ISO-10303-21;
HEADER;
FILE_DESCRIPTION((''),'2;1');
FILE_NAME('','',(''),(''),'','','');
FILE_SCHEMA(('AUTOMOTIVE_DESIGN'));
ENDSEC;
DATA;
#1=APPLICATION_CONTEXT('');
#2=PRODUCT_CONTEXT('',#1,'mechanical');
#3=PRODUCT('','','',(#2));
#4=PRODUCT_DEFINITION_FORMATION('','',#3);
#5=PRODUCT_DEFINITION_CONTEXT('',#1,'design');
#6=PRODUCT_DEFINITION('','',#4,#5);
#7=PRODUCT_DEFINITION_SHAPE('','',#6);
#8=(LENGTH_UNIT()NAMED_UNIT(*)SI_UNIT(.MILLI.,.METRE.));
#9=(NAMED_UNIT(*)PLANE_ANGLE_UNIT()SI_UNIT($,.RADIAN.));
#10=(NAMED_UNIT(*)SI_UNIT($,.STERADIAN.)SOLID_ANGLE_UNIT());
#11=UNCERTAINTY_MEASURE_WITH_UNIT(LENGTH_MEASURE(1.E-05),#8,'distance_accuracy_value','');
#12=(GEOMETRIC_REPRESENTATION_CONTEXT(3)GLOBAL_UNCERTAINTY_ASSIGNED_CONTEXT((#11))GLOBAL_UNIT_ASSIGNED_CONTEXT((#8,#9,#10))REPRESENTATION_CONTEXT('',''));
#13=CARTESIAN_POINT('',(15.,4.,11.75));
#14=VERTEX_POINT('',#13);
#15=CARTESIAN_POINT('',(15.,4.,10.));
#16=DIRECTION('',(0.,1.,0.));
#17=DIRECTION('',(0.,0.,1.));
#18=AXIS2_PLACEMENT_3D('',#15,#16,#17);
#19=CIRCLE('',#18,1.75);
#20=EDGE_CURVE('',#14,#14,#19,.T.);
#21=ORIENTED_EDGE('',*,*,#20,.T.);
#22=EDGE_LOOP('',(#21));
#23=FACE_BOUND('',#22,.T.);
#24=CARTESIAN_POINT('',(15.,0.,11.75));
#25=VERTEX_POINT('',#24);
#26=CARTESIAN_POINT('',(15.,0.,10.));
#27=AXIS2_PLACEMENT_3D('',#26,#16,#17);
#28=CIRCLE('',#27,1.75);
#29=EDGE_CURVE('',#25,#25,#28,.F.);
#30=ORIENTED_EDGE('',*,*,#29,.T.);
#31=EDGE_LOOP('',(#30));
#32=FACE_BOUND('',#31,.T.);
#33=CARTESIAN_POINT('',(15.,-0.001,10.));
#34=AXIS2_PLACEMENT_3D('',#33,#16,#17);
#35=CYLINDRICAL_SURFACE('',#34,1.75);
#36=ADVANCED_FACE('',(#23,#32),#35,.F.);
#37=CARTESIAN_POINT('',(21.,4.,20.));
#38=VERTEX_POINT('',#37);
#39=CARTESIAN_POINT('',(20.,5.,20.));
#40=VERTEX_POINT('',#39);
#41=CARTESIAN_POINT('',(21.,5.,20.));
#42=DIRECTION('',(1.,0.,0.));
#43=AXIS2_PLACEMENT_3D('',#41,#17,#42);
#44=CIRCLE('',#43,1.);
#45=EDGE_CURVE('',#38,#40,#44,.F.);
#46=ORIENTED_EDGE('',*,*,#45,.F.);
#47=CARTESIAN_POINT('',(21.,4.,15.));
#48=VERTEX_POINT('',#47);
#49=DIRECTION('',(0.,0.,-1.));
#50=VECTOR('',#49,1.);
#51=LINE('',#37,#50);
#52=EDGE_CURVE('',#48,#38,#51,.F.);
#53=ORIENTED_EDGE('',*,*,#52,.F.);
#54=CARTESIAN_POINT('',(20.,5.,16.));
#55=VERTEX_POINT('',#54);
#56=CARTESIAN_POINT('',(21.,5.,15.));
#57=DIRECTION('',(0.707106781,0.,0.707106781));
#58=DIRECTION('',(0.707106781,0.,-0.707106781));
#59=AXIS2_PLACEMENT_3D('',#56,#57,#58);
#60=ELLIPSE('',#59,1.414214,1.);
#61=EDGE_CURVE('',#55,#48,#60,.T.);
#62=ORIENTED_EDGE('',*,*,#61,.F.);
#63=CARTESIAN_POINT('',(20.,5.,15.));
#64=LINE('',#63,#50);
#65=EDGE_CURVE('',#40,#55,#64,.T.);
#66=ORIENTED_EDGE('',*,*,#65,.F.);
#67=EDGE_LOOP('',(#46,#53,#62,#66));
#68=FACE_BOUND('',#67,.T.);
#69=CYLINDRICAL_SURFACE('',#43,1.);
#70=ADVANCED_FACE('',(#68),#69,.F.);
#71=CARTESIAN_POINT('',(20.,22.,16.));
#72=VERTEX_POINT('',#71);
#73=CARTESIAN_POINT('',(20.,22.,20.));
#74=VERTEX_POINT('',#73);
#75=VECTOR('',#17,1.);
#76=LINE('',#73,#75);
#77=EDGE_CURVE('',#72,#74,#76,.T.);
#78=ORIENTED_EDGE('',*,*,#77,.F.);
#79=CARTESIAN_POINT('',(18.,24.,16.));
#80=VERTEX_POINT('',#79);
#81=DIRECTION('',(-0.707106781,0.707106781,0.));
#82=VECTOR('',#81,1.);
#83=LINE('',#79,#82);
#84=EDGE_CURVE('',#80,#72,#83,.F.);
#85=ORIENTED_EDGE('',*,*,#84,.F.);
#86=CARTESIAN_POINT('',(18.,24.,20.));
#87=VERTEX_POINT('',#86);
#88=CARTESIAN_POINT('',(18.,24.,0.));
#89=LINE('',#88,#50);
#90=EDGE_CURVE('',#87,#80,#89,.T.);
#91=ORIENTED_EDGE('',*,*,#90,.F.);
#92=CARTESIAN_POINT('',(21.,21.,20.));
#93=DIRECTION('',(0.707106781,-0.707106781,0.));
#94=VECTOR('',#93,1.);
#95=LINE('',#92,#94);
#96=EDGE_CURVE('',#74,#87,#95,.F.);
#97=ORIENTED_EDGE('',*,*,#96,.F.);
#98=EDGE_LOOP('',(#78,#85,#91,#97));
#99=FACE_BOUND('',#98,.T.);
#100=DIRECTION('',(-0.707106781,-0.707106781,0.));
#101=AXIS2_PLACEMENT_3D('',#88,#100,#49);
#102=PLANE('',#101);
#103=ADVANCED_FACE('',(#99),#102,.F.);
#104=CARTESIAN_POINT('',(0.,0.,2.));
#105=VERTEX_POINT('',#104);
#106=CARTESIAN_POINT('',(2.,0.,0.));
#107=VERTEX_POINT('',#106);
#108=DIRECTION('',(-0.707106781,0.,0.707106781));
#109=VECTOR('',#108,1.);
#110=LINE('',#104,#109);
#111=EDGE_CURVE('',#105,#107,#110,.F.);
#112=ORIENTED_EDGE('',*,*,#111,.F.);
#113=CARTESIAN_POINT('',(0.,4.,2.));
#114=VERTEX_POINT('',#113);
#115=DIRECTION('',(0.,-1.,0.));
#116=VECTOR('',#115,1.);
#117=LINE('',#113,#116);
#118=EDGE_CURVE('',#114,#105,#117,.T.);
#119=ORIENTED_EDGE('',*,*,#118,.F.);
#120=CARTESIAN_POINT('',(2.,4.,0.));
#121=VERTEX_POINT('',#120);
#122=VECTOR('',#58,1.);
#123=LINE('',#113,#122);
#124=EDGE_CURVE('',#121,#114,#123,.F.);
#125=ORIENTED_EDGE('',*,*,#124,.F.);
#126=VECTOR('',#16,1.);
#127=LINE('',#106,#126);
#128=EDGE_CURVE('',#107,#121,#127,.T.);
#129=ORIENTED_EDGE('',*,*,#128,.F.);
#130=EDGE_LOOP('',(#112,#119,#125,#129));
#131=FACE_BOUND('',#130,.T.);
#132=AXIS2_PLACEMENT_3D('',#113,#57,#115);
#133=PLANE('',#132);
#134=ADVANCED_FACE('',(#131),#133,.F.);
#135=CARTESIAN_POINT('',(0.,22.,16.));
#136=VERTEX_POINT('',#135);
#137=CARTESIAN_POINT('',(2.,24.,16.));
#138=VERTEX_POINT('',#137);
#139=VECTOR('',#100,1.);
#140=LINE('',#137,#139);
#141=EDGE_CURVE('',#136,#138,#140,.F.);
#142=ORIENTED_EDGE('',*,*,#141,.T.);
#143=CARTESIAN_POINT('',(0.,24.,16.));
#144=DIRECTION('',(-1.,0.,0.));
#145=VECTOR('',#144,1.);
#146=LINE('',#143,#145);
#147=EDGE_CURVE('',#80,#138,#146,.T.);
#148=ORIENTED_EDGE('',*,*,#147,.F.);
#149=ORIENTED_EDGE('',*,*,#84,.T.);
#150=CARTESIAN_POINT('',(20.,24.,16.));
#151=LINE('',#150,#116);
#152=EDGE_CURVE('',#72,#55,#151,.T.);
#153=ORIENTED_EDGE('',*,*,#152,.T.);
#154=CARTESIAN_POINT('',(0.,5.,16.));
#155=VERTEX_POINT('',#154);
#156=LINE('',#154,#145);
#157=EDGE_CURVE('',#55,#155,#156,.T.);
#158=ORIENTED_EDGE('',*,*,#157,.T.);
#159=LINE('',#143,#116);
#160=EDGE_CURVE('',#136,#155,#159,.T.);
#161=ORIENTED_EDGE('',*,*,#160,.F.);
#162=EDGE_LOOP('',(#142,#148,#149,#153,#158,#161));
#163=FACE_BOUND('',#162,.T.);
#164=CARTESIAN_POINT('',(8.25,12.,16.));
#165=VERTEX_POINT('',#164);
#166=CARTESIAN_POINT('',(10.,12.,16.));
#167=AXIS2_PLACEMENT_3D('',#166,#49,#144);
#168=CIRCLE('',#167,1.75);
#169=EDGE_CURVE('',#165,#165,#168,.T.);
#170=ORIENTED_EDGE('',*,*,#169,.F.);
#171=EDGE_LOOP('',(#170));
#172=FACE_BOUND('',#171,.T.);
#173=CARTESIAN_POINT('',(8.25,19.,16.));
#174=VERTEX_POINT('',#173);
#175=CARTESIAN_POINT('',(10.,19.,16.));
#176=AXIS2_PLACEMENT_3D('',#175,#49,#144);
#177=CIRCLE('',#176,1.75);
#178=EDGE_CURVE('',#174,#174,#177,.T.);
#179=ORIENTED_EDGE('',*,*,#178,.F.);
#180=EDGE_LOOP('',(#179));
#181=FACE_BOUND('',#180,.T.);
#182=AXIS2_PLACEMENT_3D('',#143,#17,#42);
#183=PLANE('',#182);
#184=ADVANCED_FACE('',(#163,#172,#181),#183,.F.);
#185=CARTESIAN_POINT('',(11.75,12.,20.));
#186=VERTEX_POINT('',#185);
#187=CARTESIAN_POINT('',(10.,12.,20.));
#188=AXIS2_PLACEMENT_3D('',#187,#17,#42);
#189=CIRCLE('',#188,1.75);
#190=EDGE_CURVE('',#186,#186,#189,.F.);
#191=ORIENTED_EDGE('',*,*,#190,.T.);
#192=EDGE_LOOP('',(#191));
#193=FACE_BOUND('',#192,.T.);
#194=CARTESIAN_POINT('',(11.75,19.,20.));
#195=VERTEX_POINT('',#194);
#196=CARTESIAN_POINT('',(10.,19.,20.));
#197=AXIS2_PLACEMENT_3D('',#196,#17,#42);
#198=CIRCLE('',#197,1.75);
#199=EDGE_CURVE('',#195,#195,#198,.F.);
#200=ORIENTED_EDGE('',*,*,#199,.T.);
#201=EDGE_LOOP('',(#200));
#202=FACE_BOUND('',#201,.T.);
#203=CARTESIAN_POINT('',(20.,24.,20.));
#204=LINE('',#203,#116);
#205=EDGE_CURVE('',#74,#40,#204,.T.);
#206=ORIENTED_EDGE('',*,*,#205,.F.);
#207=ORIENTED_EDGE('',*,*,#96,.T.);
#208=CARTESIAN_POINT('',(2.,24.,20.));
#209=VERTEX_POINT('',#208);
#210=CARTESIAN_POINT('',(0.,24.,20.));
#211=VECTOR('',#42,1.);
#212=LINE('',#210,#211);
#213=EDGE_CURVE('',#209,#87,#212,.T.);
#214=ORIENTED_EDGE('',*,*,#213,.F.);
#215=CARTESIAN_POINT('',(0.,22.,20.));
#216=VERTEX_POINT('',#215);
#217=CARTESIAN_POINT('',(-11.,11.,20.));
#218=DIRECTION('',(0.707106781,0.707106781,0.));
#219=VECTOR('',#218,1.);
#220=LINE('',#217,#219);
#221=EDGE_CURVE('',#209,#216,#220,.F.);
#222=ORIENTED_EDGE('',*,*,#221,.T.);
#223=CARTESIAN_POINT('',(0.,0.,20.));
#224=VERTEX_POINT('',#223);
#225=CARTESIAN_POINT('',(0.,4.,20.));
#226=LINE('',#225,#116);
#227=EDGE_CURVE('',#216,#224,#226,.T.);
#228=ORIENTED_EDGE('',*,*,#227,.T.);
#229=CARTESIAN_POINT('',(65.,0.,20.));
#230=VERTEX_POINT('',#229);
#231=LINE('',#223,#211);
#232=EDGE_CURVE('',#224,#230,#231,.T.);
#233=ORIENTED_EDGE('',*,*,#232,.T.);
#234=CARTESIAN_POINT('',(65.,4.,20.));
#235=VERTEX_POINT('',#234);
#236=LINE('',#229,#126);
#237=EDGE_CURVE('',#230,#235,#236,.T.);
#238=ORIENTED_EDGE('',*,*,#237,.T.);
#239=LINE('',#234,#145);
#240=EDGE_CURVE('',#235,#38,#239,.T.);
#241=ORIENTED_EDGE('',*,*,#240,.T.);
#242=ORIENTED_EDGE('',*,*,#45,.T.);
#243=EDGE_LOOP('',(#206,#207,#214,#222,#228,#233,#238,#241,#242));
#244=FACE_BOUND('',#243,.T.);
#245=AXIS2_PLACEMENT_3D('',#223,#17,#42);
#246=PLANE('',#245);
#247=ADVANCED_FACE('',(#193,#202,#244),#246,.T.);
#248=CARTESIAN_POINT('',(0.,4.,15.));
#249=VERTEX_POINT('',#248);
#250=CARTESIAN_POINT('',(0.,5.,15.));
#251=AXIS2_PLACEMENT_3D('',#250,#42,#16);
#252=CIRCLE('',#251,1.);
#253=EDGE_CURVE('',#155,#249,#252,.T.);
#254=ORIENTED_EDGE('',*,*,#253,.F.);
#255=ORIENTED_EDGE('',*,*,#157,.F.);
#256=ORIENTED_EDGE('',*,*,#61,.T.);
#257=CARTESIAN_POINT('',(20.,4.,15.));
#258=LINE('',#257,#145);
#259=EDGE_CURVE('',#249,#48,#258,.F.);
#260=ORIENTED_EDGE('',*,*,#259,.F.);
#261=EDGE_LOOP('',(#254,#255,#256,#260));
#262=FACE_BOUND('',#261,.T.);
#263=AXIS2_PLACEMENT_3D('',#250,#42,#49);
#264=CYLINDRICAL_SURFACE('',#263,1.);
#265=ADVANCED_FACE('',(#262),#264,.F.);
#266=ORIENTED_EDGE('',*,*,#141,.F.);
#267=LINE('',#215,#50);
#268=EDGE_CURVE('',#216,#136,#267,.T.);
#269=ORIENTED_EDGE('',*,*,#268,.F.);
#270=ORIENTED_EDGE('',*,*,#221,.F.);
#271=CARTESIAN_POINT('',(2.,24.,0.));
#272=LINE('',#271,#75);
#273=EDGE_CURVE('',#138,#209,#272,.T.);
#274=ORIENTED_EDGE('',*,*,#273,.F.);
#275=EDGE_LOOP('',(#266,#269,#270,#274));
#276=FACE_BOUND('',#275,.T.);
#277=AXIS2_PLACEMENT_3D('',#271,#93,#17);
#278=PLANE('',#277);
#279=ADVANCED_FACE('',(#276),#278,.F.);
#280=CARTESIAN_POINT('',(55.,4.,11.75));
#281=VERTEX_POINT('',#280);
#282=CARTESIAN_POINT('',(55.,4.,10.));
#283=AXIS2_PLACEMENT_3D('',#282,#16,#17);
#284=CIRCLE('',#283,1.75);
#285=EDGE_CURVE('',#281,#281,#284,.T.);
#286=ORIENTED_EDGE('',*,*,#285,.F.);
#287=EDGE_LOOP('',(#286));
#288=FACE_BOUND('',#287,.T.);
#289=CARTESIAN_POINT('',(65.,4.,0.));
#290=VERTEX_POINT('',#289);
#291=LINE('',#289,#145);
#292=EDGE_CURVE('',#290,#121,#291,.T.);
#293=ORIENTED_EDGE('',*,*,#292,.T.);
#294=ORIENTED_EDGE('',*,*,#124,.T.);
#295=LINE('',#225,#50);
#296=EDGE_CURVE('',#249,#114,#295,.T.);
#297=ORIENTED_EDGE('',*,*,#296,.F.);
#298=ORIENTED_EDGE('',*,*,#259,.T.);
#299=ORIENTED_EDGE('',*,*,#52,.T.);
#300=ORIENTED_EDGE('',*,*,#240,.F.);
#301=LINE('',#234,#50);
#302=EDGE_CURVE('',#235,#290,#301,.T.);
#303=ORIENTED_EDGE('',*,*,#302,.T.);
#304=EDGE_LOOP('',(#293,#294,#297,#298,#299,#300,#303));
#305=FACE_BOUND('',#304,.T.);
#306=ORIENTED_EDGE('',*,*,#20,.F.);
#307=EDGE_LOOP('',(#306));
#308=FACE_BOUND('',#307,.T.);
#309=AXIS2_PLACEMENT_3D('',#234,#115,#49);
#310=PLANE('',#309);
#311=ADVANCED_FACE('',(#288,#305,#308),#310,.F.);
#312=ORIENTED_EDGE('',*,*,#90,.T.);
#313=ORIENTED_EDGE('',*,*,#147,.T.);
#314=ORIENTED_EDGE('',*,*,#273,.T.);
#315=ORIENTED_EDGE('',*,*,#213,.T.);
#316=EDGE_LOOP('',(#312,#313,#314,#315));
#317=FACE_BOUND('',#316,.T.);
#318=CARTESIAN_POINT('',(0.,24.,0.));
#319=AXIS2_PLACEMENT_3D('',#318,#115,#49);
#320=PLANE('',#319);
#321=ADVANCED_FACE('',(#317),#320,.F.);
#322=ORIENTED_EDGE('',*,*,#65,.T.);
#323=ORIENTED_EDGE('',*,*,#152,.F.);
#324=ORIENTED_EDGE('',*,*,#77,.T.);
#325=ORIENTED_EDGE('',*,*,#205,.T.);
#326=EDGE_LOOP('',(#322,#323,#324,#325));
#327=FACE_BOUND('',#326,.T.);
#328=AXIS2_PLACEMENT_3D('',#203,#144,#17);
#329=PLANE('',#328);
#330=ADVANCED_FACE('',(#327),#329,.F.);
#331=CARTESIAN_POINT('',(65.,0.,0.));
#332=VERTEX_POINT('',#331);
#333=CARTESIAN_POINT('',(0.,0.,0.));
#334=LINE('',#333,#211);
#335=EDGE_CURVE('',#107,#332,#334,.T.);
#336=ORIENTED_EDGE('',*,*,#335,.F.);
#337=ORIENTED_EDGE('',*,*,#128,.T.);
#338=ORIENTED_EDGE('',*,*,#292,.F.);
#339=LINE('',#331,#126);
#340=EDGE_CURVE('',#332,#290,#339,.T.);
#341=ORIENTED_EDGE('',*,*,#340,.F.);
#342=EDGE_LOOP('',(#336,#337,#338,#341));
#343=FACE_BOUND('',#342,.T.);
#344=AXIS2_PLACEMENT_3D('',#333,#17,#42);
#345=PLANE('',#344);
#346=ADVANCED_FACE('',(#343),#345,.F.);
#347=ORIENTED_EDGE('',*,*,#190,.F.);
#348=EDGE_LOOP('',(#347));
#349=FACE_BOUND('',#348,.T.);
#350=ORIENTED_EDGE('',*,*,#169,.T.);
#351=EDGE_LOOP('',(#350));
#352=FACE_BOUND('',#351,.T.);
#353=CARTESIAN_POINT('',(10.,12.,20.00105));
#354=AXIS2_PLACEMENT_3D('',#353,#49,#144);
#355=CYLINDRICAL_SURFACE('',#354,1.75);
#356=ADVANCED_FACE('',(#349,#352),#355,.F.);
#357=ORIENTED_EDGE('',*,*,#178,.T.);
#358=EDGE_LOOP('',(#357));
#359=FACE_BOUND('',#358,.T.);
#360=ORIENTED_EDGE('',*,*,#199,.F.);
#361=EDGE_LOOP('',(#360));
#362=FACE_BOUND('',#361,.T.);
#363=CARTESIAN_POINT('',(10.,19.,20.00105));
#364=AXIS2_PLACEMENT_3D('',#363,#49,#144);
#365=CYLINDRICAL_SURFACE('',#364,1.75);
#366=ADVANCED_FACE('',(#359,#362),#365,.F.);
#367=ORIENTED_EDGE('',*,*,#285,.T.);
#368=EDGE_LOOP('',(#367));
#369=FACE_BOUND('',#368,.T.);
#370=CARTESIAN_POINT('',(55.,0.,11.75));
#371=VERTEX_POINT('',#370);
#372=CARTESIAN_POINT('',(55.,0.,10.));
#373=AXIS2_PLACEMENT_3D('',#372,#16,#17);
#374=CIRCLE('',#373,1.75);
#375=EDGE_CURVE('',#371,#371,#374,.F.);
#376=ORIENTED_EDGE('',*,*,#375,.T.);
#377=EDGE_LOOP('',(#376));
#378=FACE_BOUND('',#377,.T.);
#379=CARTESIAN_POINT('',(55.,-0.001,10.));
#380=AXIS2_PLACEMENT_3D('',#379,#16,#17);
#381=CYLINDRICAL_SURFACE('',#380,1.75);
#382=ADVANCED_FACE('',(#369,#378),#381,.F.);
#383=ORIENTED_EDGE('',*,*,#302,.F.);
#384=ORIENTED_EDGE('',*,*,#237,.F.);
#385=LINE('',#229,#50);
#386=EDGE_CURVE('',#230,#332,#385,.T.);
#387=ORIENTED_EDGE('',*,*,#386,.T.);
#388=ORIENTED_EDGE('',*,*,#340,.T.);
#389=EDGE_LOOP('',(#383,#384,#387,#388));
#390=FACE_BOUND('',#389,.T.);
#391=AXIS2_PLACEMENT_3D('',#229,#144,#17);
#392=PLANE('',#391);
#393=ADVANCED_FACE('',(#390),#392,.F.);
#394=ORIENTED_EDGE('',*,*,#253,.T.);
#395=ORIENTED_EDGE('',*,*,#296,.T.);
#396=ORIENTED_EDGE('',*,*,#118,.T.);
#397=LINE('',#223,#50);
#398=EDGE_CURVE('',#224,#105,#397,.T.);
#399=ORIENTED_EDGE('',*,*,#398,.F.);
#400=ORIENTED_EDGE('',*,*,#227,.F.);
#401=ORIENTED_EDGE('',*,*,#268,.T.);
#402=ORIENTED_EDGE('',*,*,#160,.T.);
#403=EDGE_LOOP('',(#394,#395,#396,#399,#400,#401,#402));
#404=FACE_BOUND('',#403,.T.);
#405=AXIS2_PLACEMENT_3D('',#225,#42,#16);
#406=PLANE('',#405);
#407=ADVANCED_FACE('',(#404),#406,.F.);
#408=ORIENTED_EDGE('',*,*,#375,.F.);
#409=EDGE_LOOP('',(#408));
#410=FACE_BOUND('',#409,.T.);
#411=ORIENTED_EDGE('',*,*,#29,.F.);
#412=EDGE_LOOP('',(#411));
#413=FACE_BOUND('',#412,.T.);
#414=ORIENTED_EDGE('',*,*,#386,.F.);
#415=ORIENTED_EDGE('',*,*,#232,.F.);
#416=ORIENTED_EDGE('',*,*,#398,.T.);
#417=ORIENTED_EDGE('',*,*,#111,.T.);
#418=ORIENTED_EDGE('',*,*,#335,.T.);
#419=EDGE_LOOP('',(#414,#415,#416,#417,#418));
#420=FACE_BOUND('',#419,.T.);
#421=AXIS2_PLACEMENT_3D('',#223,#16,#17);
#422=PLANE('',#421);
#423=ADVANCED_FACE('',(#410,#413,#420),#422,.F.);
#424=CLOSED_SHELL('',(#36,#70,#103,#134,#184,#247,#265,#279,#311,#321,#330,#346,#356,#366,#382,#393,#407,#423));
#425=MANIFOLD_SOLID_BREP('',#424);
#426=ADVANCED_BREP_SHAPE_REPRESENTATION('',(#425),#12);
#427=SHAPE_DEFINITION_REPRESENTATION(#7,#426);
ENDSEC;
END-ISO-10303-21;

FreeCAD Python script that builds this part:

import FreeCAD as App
import Part
import Sketcher
Q = App.Units.Quantity


def edges_at(feature, points):
    """Names of the edges that pass closest to the given points."""
    edges = feature.Shape.Edges
    near = lambda p: min(range(len(edges)), key=lambda i: edges[i].distToShape(Part.Vertex(*p))[0])
    return sorted({f"Edge{near(p) + 1}" for p in points})


def add_polygon(sketch, points):
    """Adds a closed chain of lines whose ends are joined by coincident constraints."""
    first, n = sketch.GeometryCount, len(points)
    for a, b in zip(points, points[1:] + points[:1]):
        sketch.addGeometry(Part.LineSegment(App.Vector(*a, 0), App.Vector(*b, 0)), False)
    for i in range(n):
        sketch.addConstraint(Sketcher.Constraint("Coincident", first + i, 2, first + (i + 1) % n, 1))

doc = App.newDocument("Part")
body = doc.addObject("PartDesign::Body", "Body")

# Sketch on XY plane
sketch1 = doc.addObject("Sketcher::SketchObject", "Sketch")
body.addObject(sketch1)
sketch1.AttachmentSupport = (doc.XY_Plane, [""])
sketch1.MapMode = "FlatFace"
add_polygon(sketch1, [(0, 4), (0, 0), (65, 0), (65, 4)])  # lines 0-3
sketch1.addConstraint([
    Sketcher.Constraint("Vertical", 0),
    Sketcher.Constraint("Horizontal", 1),
    Sketcher.Constraint("Vertical", 2),
    Sketcher.Constraint("Horizontal", 3),
    Sketcher.Constraint("Coincident", 0, 2, -1, 1),
    Sketcher.Constraint("DistanceX", 1, 1, 1, 2, Q("65 mm")),
    Sketcher.Constraint("DistanceY", 0, 2, 0, 1, Q("4 mm")),
])
pad1 = doc.addObject("PartDesign::Pad", "Pad")
body.addObject(pad1)
pad1.Profile = sketch1
pad1.Length = 20

# Sketch on XZ plane
sketch2 = doc.addObject("Sketcher::SketchObject", "Sketch001")
body.addObject(sketch2)
sketch2.AttachmentSupport = (doc.XZ_Plane, [""])
sketch2.MapMode = "FlatFace"
sketch2.AttachmentOffset = App.Placement(App.Vector(0, 0, -4), App.Rotation())
add_polygon(sketch2, [(0, 16), (0, 20), (20, 20), (20, 16)])  # lines 0-3
sketch2.addConstraint([
    Sketcher.Constraint("Vertical", 0),
    Sketcher.Constraint("Horizontal", 1),
    Sketcher.Constraint("Vertical", 2),
    Sketcher.Constraint("Horizontal", 3),
    Sketcher.Constraint("PointOnObject", 0, 2, -2),
    Sketcher.Constraint("DistanceX", 1, 1, 1, 2, Q("20 mm")),
    Sketcher.Constraint("DistanceY", 0, 1, 0, 2, Q("4 mm")),
    Sketcher.Constraint("DistanceY", -1, 1, 0, 2, Q("20 mm")),
])
pad2 = doc.addObject("PartDesign::Pad", "Pad001")
body.addObject(pad2)
pad2.Profile = sketch2
pad2.Length = 20
pad2.Reversed = True

# Sketch on XZ plane
sketch3 = doc.addObject("Sketcher::SketchObject", "Sketch002")
body.addObject(sketch3)
sketch3.AttachmentSupport = (doc.XZ_Plane, [""])
sketch3.MapMode = "FlatFace"
sketch3.AttachmentOffset = App.Placement(App.Vector(0, 0, -4), App.Rotation())
sketch3.addGeometry(Part.Circle(App.Vector(15, 10, 0), App.Vector(0, 0, 1), 1.75), False)
sketch3.addConstraint([
    Sketcher.Constraint("Diameter", 0, Q("3.5 mm")),
    Sketcher.Constraint("DistanceX", -1, 1, 0, 3, Q("15 mm")),
    Sketcher.Constraint("DistanceY", -1, 1, 0, 3, Q("10 mm")),
])
pocket1 = doc.addObject("PartDesign::Pocket", "Pocket")
body.addObject(pocket1)
pocket1.Profile = sketch3
pocket1.Type = "UpToFirst"
pocket1.Reversed = True

# Sketch on XZ plane
sketch4 = doc.addObject("Sketcher::SketchObject", "Sketch003")
body.addObject(sketch4)
sketch4.AttachmentSupport = (doc.XZ_Plane, [""])
sketch4.MapMode = "FlatFace"
sketch4.AttachmentOffset = App.Placement(App.Vector(0, 0, -4), App.Rotation())
sketch4.addGeometry(Part.Circle(App.Vector(55, 10, 0), App.Vector(0, 0, 1), 1.75), False)
sketch4.addConstraint([
    Sketcher.Constraint("Diameter", 0, Q("3.5 mm")),
    Sketcher.Constraint("DistanceX", -1, 1, 0, 3, Q("55 mm")),
    Sketcher.Constraint("DistanceY", -1, 1, 0, 3, Q("10 mm")),
])
pocket2 = doc.addObject("PartDesign::Pocket", "Pocket001")
body.addObject(pocket2)
pocket2.Profile = sketch4
pocket2.Type = "UpToFirst"
pocket2.Reversed = True

# Sketch on XY plane
sketch5 = doc.addObject("Sketcher::SketchObject", "Sketch004")
body.addObject(sketch5)
sketch5.AttachmentSupport = (doc.XY_Plane, [""])
sketch5.MapMode = "FlatFace"
sketch5.AttachmentOffset = App.Placement(App.Vector(0, 0, 16), App.Rotation())
sketch5.addGeometry(Part.Circle(App.Vector(10, 19, 0), App.Vector(0, 0, 1), 1.75), False)
sketch5.addConstraint([
    Sketcher.Constraint("Diameter", 0, Q("3.5 mm")),
    Sketcher.Constraint("DistanceX", -1, 1, 0, 3, Q("10 mm")),
    Sketcher.Constraint("DistanceY", -1, 1, 0, 3, Q("19 mm")),
])
pocket3 = doc.addObject("PartDesign::Pocket", "Pocket002")
body.addObject(pocket3)
pocket3.Profile = sketch5
pocket3.Type = "UpToFirst"
pocket3.Reversed = True

# Sketch on XY plane
sketch6 = doc.addObject("Sketcher::SketchObject", "Sketch005")
body.addObject(sketch6)
sketch6.AttachmentSupport = (doc.XY_Plane, [""])
sketch6.MapMode = "FlatFace"
sketch6.AttachmentOffset = App.Placement(App.Vector(0, 0, 16), App.Rotation())
sketch6.addGeometry(Part.Circle(App.Vector(10, 12, 0), App.Vector(0, 0, 1), 1.75), False)
sketch6.addConstraint([
    Sketcher.Constraint("Diameter", 0, Q("3.5 mm")),
    Sketcher.Constraint("DistanceX", -1, 1, 0, 3, Q("10 mm")),
    Sketcher.Constraint("DistanceY", -1, 1, 0, 3, Q("12 mm")),
])
pocket4 = doc.addObject("PartDesign::Pocket", "Pocket003")
body.addObject(pocket4)
pocket4.Profile = sketch6
pocket4.Type = "UpToFirst"
pocket4.Reversed = True
doc.recompute()

fillet = doc.addObject("PartDesign::Fillet", "Fillet")
body.addObject(fillet)
fillet.Base = (pocket4, edges_at(pocket4, [(10, 4, 16)]))
fillet.Radius = 1
doc.recompute()

fillet2 = doc.addObject("PartDesign::Fillet", "Fillet001")
body.addObject(fillet2)
fillet2.Base = (fillet, edges_at(fillet, [(20, 4, 17.5)]))
fillet2.Radius = 1
doc.recompute()

chamfer = doc.addObject("PartDesign::Chamfer", "Chamfer")
body.addObject(chamfer)
chamfer.Base = (fillet2, edges_at(fillet2, [(0, 24, 18), (20, 24, 18)]))
chamfer.Size = 2
doc.recompute()

chamfer2 = doc.addObject("PartDesign::Chamfer", "Chamfer001")
body.addObject(chamfer2)
chamfer2.Base = (chamfer, edges_at(chamfer, [(0, 2, 0)]))
chamfer2.Size = 2

doc.recompute()
